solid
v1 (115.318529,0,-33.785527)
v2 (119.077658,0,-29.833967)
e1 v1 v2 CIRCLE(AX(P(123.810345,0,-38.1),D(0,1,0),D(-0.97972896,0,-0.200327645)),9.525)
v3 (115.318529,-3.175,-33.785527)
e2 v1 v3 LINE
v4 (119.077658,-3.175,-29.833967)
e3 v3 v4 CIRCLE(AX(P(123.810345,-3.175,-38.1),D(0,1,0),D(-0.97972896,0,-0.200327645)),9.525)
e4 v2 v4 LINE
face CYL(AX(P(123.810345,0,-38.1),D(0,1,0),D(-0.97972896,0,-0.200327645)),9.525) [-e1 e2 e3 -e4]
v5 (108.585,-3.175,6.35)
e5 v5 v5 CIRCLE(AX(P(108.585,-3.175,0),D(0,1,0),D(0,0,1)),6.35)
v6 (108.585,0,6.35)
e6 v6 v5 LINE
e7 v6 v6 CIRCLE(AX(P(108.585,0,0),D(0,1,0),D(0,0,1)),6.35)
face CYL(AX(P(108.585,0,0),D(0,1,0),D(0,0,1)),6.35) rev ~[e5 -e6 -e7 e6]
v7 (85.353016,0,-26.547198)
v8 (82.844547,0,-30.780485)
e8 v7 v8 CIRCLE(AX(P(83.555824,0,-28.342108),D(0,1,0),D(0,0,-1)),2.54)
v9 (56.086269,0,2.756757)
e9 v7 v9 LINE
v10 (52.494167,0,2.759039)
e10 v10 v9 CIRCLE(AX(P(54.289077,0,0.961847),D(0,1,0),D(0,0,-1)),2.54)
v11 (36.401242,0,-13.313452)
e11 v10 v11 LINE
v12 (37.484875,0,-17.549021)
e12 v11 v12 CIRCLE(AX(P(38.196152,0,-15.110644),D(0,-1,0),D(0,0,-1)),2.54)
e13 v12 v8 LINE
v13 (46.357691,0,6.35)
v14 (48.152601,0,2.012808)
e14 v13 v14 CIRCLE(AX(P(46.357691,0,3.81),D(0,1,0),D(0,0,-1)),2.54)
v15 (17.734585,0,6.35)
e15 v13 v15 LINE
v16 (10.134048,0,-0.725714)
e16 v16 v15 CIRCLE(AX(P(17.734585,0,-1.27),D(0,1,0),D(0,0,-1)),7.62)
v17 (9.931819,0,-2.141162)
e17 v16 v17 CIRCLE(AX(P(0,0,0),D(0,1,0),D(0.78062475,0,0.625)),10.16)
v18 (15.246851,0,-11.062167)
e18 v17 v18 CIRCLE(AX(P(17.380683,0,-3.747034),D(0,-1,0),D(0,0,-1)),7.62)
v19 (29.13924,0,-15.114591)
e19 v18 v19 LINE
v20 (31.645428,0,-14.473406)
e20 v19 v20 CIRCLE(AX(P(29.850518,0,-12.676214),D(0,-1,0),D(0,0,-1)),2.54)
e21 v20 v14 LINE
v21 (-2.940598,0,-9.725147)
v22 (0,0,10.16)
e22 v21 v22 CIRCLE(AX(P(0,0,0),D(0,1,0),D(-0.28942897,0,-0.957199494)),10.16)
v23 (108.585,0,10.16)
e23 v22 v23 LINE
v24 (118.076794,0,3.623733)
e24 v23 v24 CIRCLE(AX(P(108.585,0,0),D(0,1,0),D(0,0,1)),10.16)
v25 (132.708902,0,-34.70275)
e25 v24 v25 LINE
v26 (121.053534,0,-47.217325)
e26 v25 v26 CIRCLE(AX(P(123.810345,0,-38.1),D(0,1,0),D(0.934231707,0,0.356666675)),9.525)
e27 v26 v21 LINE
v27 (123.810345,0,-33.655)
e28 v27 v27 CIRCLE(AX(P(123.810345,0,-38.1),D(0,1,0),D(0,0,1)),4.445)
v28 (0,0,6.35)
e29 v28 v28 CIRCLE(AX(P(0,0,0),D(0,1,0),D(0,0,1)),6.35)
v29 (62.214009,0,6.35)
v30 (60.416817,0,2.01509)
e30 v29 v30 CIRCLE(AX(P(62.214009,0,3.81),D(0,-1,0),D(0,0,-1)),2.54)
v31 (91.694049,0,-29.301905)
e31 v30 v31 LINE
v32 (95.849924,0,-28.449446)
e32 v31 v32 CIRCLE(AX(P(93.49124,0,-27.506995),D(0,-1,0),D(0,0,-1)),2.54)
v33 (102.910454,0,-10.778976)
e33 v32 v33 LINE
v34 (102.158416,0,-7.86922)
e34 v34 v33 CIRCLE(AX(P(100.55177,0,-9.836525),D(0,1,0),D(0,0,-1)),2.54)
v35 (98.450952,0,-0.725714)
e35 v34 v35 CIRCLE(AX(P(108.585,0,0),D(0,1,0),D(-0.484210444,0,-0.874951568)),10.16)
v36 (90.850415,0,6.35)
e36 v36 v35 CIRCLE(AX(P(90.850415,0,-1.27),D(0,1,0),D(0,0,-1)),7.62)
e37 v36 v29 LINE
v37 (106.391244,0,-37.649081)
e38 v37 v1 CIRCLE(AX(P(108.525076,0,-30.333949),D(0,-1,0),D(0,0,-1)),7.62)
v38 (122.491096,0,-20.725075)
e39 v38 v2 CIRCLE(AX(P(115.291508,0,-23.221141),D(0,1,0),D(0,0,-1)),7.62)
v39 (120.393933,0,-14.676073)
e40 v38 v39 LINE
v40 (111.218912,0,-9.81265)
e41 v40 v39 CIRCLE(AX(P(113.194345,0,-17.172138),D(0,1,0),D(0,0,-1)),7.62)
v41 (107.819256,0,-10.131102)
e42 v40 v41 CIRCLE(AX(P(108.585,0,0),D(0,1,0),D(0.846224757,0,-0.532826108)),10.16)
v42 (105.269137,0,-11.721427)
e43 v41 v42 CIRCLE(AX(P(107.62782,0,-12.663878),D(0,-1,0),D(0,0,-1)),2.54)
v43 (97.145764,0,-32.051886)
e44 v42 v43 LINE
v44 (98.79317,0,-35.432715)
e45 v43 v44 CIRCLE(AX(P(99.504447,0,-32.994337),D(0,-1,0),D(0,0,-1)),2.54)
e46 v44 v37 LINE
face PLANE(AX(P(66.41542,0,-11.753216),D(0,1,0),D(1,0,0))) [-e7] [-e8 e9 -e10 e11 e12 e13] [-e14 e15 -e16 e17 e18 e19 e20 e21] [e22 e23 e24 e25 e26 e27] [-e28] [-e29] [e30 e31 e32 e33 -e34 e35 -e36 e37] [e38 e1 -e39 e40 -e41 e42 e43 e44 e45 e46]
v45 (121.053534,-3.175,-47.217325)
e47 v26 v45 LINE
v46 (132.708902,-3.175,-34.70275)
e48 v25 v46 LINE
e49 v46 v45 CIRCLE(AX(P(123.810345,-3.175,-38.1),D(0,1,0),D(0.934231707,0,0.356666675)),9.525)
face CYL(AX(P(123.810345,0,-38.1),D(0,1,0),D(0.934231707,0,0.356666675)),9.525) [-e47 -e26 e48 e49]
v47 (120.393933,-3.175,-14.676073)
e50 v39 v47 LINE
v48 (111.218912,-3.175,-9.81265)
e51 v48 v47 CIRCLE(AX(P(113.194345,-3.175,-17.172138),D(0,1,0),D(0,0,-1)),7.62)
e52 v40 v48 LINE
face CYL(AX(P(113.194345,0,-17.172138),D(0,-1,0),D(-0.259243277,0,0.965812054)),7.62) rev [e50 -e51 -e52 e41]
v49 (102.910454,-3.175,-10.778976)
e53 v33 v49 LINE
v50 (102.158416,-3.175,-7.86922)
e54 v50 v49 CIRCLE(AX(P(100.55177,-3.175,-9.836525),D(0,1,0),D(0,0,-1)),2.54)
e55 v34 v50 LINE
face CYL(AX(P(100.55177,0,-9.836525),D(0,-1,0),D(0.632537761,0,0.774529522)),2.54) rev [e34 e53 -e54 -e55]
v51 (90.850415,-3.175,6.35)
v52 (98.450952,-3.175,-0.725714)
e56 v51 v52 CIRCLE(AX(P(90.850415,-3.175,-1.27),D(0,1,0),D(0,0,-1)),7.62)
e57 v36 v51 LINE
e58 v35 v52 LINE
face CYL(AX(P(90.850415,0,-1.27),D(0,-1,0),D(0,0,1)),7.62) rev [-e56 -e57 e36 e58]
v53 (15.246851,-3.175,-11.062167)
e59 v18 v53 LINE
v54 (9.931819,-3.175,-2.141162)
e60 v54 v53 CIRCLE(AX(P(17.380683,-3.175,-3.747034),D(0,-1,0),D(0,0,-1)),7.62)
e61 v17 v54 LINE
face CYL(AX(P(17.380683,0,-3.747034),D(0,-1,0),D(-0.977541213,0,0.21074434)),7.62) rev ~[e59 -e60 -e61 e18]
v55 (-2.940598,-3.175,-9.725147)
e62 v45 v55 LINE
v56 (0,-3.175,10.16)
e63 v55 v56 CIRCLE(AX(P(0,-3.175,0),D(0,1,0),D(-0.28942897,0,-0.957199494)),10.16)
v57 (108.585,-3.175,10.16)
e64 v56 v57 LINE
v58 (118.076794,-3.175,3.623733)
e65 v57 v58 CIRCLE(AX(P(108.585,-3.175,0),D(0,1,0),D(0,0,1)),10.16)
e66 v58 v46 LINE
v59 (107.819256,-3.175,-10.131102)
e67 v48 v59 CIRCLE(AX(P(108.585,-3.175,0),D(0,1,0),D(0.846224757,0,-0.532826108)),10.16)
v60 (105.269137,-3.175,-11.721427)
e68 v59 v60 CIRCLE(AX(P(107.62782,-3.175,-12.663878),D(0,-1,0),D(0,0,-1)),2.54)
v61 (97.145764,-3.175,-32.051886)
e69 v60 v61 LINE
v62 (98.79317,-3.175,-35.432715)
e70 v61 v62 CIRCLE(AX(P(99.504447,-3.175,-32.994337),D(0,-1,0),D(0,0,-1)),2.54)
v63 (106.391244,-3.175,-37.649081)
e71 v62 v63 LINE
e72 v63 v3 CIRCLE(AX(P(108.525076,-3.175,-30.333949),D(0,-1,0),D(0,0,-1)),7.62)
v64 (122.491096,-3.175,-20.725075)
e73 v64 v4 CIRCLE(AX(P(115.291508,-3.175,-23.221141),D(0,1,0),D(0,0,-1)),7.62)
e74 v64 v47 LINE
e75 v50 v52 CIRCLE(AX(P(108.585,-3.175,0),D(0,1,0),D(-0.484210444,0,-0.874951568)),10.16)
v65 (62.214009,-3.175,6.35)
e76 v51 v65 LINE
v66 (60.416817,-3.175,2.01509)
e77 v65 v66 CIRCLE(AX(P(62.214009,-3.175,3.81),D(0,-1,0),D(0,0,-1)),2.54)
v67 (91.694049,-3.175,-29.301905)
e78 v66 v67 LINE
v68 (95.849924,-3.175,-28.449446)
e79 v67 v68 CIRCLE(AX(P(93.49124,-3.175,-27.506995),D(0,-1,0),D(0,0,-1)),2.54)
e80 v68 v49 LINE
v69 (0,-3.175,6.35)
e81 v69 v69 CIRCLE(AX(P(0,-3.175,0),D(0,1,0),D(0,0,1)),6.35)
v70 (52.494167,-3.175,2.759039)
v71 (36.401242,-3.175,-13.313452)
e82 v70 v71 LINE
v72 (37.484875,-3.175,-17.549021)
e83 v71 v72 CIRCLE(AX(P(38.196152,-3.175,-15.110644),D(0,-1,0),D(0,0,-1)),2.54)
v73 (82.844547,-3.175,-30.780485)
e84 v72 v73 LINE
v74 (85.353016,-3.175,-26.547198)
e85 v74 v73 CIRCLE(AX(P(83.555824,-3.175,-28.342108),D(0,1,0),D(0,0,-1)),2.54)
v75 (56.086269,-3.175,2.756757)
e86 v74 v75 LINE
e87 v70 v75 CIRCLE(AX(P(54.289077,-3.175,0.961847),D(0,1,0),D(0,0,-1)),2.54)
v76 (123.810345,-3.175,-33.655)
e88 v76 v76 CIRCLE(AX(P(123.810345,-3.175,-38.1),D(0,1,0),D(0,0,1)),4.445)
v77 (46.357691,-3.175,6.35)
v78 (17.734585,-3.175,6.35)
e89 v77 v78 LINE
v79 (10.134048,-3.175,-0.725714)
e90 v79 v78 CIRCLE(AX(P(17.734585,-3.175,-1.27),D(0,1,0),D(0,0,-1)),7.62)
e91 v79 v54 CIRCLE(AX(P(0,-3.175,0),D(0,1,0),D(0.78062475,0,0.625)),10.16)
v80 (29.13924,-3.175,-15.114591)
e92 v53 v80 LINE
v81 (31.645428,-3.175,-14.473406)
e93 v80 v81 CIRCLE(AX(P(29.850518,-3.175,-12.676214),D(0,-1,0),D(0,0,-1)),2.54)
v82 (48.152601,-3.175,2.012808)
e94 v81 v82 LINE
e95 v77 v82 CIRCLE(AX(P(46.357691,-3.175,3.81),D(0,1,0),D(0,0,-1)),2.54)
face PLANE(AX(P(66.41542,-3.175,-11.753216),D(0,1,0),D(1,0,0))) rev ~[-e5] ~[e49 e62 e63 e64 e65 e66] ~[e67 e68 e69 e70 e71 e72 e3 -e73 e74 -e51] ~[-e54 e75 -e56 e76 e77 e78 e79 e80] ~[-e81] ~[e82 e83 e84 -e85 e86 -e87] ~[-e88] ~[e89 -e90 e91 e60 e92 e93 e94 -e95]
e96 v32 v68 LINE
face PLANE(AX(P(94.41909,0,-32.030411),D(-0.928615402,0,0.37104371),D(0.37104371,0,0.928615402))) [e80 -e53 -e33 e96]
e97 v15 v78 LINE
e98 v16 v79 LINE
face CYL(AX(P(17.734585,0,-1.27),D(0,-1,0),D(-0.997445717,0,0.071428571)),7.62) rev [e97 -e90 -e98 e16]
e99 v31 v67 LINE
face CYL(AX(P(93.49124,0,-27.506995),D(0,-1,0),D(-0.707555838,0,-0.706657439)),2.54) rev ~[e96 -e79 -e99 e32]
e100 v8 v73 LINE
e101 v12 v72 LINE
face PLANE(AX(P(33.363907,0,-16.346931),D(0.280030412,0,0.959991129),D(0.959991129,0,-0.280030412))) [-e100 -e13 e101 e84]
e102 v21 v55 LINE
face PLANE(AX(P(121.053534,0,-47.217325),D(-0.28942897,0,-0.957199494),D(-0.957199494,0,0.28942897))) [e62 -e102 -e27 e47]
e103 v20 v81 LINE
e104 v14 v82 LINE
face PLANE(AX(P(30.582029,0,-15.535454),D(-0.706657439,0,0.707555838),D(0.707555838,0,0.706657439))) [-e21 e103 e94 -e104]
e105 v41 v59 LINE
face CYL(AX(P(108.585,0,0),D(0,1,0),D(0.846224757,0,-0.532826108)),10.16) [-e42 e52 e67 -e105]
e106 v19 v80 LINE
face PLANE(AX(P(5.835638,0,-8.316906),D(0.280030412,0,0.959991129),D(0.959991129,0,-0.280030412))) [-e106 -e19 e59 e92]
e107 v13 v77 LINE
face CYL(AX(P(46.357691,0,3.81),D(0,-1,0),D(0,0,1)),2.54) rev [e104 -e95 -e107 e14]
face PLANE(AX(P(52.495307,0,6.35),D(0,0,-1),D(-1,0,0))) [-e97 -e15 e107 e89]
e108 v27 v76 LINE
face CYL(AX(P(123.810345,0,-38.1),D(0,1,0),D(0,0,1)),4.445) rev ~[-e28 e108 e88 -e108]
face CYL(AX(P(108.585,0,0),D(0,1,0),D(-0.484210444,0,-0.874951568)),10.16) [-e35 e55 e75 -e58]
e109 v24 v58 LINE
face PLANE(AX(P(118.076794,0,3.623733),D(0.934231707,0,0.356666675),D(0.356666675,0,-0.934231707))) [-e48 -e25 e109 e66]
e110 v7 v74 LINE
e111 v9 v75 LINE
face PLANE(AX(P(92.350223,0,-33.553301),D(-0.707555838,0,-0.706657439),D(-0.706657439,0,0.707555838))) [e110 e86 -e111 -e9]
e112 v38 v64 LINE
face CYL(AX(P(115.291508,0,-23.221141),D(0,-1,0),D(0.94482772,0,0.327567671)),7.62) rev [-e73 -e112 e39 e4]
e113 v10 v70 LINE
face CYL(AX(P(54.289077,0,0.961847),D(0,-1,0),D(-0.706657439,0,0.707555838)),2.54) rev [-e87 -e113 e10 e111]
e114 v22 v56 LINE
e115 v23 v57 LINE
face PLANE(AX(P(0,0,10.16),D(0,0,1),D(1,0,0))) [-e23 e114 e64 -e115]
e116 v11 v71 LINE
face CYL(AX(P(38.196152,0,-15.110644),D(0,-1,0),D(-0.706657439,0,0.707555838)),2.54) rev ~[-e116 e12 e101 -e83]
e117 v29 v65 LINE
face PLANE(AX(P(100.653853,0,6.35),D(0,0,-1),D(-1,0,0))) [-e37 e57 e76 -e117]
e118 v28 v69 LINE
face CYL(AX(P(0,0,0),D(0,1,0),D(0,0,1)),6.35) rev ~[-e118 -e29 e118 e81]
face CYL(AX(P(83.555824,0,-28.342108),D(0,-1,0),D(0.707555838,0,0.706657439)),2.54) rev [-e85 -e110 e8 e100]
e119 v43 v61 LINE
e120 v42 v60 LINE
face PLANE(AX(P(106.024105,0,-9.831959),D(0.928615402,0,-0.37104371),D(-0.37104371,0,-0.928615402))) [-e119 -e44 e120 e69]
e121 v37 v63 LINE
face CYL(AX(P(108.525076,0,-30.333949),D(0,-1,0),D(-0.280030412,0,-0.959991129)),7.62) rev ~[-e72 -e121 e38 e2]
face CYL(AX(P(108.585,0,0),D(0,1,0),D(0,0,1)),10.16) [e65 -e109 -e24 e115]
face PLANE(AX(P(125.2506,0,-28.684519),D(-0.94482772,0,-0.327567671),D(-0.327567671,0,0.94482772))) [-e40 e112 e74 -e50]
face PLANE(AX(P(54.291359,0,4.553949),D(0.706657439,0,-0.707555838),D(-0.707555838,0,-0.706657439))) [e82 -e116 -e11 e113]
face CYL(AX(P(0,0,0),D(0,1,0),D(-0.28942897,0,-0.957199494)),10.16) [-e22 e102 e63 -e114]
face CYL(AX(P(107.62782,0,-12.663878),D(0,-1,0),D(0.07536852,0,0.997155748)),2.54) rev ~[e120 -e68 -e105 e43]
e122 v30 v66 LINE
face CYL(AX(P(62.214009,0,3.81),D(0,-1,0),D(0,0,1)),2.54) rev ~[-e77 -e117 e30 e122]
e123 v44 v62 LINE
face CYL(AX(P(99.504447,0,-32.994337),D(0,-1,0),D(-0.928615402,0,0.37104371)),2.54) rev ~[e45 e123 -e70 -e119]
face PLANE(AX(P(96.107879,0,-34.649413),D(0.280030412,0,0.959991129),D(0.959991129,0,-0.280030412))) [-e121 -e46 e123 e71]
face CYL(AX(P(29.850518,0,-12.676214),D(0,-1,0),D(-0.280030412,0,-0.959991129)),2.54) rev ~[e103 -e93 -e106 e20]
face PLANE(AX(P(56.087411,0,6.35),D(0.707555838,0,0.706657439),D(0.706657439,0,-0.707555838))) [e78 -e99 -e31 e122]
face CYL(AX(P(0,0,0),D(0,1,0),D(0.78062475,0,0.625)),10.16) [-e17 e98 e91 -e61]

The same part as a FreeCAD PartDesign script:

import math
import FreeCAD as App
import Part
import Sketcher
from FreeCAD import Vector
Q = App.Units.Quantity


def edges_at(feature, points):
    """Names of the edges that pass closest to the given points."""
    edges = feature.Shape.Edges
    near = lambda p: min(range(len(edges)), key=lambda i: edges[i].distToShape(Part.Vertex(*p))[0])
    return sorted({f"Edge{near(p) + 1}" for p in points})

doc = App.newDocument("Part")
body = doc.addObject("PartDesign::Body", "Body")

sketch1 = doc.addObject("Sketcher::SketchObject", "Sketch")
body.addObject(sketch1)
sketch1.AttachmentSupport = (doc.XZ_Plane, [""])
sketch1.MapMode = "FlatFace"
sketch1.addGeometry([
    Part.ArcOfCircle(Part.Circle(Vector(123.810345, -38.1, 0), Vector(0, 0, 1), 9.525), math.radians(-106.823772), math.radians(20.895626)),
    Part.LineSegment(Vector(121.053534, -47.217325, 0), Vector(-2.940598, -9.725147, 0)),
    Part.ArcOfCircle(Part.Circle(Vector(0, 0, 0), Vector(0, 0, 1), 10.16), math.radians(90), math.radians(253.176228)),
    Part.LineSegment(Vector(0, 10.16, 0), Vector(108.585, 10.16, 0)),
    Part.ArcOfCircle(Part.Circle(Vector(108.585, 0, 0), Vector(0, 0, 1), 10.16), math.radians(20.895626), math.radians(90)),
    Part.LineSegment(Vector(118.076794, 3.623733, 0), Vector(132.708902, -34.70275, 0)),
    Part.Circle(Vector(0, 0, 0), Vector(0, 0, 1), 6.35),
    Part.ArcOfCircle(Part.Circle(Vector(0, 0, 0), Vector(0, 0, 1), 10.16), math.radians(-54.944207), math.radians(38.682187)),
    Part.LineSegment(Vector(5.835638, -8.316906, 0), Vector(30.582029, -15.535454, 0)),
    Part.LineSegment(Vector(30.582029, -15.535454, 0), Vector(52.495307, 6.35, 0)),
    Part.LineSegment(Vector(52.495307, 6.35, 0), Vector(7.931147, 6.35, 0)),
    Part.Circle(Vector(108.585, 0, 0), Vector(0, 0, 1), 6.35),
    Part.LineSegment(Vector(54.291359, 4.553949, 0), Vector(33.363907, -16.346931, 0)),
    Part.LineSegment(Vector(33.363907, -16.346931, 0), Vector(92.350223, -33.553301, 0)),
    Part.LineSegment(Vector(92.350223, -33.553301, 0), Vector(54.291359, 4.553949, 0)),
    Part.LineSegment(Vector(56.087411, 6.35, 0), Vector(94.41909, -32.030411, 0)),
    Part.LineSegment(Vector(94.41909, -32.030411, 0), Vector(103.665422, -8.889508, 0)),
    Part.ArcOfCircle(Part.Circle(Vector(108.585, 0, 0), Vector(0, 0, 1), 10.16), math.radians(141.317813), math.radians(241.039244)),
    Part.LineSegment(Vector(100.653853, 6.35, 0), Vector(56.087411, 6.35, 0)),
    Part.LineSegment(Vector(106.024105, -9.831959, 0), Vector(96.107879, -34.649413, 0)),
    Part.LineSegment(Vector(96.107879, -34.649413, 0), Vector(114.478427, -40.008121, 0)),
    Part.ArcOfCircle(Part.Circle(Vector(123.810345, -38.1, 0), Vector(0, 0, 1), 9.525), math.radians(81.30307), math.radians(191.556119)),
    Part.LineSegment(Vector(125.2506, -28.684519, 0), Vector(117.182644, -5.413513, 0)),
    Part.ArcOfCircle(Part.Circle(Vector(108.585, 0, 0), Vector(0, 0, 1), 10.16), math.radians(-104.599244), math.radians(-32.196603)),
    Part.Circle(Vector(123.810345, -38.1, 0), Vector(0, 0, 1), 4.445),
], False)
sketch1.addConstraint([
    Sketcher.Constraint("Coincident", 0, 1, 1, 1),
    Sketcher.Constraint("Coincident", 1, 2, 2, 2),
    Sketcher.Constraint("Coincident", 2, 1, 3, 1),
    Sketcher.Constraint("Coincident", 3, 2, 4, 2),
    Sketcher.Constraint("Coincident", 4, 1, 5, 1),
    Sketcher.Constraint("Coincident", 5, 2, 0, 2),
    Sketcher.Constraint("Coincident", 7, 1, 8, 1),
    Sketcher.Constraint("Coincident", 8, 2, 9, 1),
    Sketcher.Constraint("Coincident", 9, 2, 10, 1),
    Sketcher.Constraint("Coincident", 10, 2, 7, 2),
    Sketcher.Constraint("Coincident", 12, 2, 13, 1),
    Sketcher.Constraint("Coincident", 13, 2, 14, 1),
    Sketcher.Constraint("Coincident", 14, 2, 12, 1),
    Sketcher.Constraint("Coincident", 15, 2, 16, 1),
    Sketcher.Constraint("Coincident", 16, 2, 17, 2),
    Sketcher.Constraint("Coincident", 17, 1, 18, 1),
    Sketcher.Constraint("Coincident", 18, 2, 15, 1),
    Sketcher.Constraint("Coincident", 19, 2, 20, 1),
    Sketcher.Constraint("Coincident", 20, 2, 21, 2),
    Sketcher.Constraint("Coincident", 21, 1, 22, 1),
    Sketcher.Constraint("Coincident", 22, 2, 23, 2),
    Sketcher.Constraint("Coincident", 23, 1, 19, 1),
    Sketcher.Constraint("Horizontal", 3),
    Sketcher.Constraint("Horizontal", 10),
    Sketcher.Constraint("Horizontal", 18),
    Sketcher.Constraint("Coincident", 2, 3, -1, 1),
    Sketcher.Constraint("Coincident", 6, 3, -1, 1),
    Sketcher.Constraint("Coincident", 7, 3, -1, 1),
    Sketcher.Constraint("Coincident", 11, 3, 4, 3),
    Sketcher.Constraint("Coincident", 17, 3, 4, 3),
    Sketcher.Constraint("Coincident", 21, 3, 0, 3),
    Sketcher.Constraint("Coincident", 23, 3, 4, 3),
    Sketcher.Constraint("Coincident", 24, 3, 0, 3),
    Sketcher.Constraint("PointOnObject", 4, 3, -1),
    Sketcher.Constraint("PointOnObject", 2, 1, -2),
    Sketcher.Constraint("Diameter", 6, Q("0.5 in")),
    Sketcher.Constraint("Diameter", 11, Q("0.5 in")),
    Sketcher.Constraint("Radius", 2, Q("0.4 in")),
    Sketcher.Constraint("Radius", 7, Q("0.4 in")),
    Sketcher.Constraint("Radius", 17, Q("0.4 in")),
    Sketcher.Constraint("Radius", 23, Q("0.4 in")),
    Sketcher.Constraint("Diameter", 24, Q("0.35 in")),
    Sketcher.Constraint("Radius", 0, Q("0.375 in")),
    Sketcher.Constraint("Radius", 21, Q("0.375 in")),
    Sketcher.Constraint("DistanceY", 0, 3, -1, 1, Q("1.5 in")),
    Sketcher.Constraint("DistanceX", 3, 1, 3, 2, Q("4.275 in")),
    Sketcher.Constraint("DistanceY", -1, 1, 9, 2, Q("0.25 in")),
    Sketcher.Constraint("DistanceY", -1, 1, 17, 1, Q("0.25 in")),
    Sketcher.Constraint("DistanceX", -1, 1, 4, 3, Q("4.275 in")),
    Sketcher.Constraint("DistanceY", 0, 1, 5, 2, Q("0.4926998 in")),
    Sketcher.Constraint("DistanceY", 12, 2, 1, 2, Q("0.2607002 in")),
    Sketcher.Constraint("DistanceX", 15, 2, 0, 1, Q("1.0486002 in")),
    Sketcher.Constraint("Distance", 5, Q("41.024601 mm")),
    Sketcher.Constraint("DistanceX", 10, 2, 10, 1, Q("44.564159 mm")),
    Sketcher.Constraint("DistanceX", 18, 2, 18, 1, Q("44.566441 mm")),
    Sketcher.Constraint("DistanceX", 1, 2, -1, 1, Q("2.940598 mm")),
    Sketcher.Constraint("DistanceY", 13, 2, -1, 1, Q("33.553301 mm")),
    Sketcher.Constraint("DistanceX", -1, 1, 21, 1, Q("125.2506 mm")),
    Sketcher.Constraint("DistanceX", 12, 2, 9, 2, Q("19.1314 mm")),
    Sketcher.Constraint("Distance", 8, Q("25.777729 mm")),
    Sketcher.Constraint("Distance", 15, Q("54.243649 mm")),
    Sketcher.Constraint("DistanceY", 5, 2, -1, 1, Q("34.70275 mm")),
    Sketcher.Constraint("DistanceX", -1, 1, 7, 1, Q("5.835638 mm")),
    Sketcher.Constraint("DistanceX", -1, 1, 8, 2, Q("30.582029 mm")),
    Sketcher.Constraint("DistanceX", -1, 1, 14, 2, Q("54.291359 mm")),
    Sketcher.Constraint("DistanceY", -1, 1, 14, 2, Q("4.553949 mm")),
    Sketcher.Constraint("DistanceX", -1, 1, 15, 2, Q("94.41909 mm")),
    Sketcher.Constraint("DistanceX", -1, 1, 16, 2, Q("103.665422 mm")),
    Sketcher.Constraint("DistanceX", -1, 1, 19, 2, Q("96.107879 mm")),
    Sketcher.Constraint("DistanceY", 20, 2, -1, 1, Q("40.008121 mm")),
    Sketcher.Constraint("DistanceY", 23, 1, -1, 1, Q("9.831959 mm")),
    Sketcher.Constraint("DistanceX", 13, 2, 21, 3, Q("31.460122 mm")),
    Sketcher.Constraint("DistanceX", 22, 2, 4, 1, Q("0.894151 mm")),
    Sketcher.Constraint("Distance", 19, Q("26.725223 mm")),
])
pad1 = doc.addObject("PartDesign::Pad", "Pad")
body.addObject(pad1)
pad1.Profile = sketch1
pad1.Length = Q("0.125 in")
doc.recompute()

fillet = doc.addObject("PartDesign::Fillet", "Fillet")
body.addObject(fillet)
fillet.Base = (pad1, edges_at(pad1, [
    (5.836, -1.587, -8.317),
    (7.931, -1.587, 6.35),
    (100.654, -1.587, 6.35),
    (125.251, -1.587, -28.685),
    (114.478, -1.587, -40.008),
    (117.183, -1.587, -5.414),
]))
fillet.Radius = Q("0.3 in")
doc.recompute()

fillet2 = doc.addObject("PartDesign::Fillet", "Fillet001")
body.addObject(fillet2)
fillet2.Base = (fillet, edges_at(fillet, [
    (92.35, -1.587, -33.553),
    (33.364, -1.587, -16.347),
    (54.291, -1.587, 4.554),
    (30.582, -1.587, -15.535),
    (52.495, -1.587, 6.35),
    (103.665, -1.587, -8.89),
    (94.419, -1.587, -32.03),
    (56.087, -1.587, 6.35),
    (96.108, -1.587, -34.649),
    (106.024, -1.587, -9.832),
]))
fillet2.Radius = Q("0.1 in")

doc.recompute()
